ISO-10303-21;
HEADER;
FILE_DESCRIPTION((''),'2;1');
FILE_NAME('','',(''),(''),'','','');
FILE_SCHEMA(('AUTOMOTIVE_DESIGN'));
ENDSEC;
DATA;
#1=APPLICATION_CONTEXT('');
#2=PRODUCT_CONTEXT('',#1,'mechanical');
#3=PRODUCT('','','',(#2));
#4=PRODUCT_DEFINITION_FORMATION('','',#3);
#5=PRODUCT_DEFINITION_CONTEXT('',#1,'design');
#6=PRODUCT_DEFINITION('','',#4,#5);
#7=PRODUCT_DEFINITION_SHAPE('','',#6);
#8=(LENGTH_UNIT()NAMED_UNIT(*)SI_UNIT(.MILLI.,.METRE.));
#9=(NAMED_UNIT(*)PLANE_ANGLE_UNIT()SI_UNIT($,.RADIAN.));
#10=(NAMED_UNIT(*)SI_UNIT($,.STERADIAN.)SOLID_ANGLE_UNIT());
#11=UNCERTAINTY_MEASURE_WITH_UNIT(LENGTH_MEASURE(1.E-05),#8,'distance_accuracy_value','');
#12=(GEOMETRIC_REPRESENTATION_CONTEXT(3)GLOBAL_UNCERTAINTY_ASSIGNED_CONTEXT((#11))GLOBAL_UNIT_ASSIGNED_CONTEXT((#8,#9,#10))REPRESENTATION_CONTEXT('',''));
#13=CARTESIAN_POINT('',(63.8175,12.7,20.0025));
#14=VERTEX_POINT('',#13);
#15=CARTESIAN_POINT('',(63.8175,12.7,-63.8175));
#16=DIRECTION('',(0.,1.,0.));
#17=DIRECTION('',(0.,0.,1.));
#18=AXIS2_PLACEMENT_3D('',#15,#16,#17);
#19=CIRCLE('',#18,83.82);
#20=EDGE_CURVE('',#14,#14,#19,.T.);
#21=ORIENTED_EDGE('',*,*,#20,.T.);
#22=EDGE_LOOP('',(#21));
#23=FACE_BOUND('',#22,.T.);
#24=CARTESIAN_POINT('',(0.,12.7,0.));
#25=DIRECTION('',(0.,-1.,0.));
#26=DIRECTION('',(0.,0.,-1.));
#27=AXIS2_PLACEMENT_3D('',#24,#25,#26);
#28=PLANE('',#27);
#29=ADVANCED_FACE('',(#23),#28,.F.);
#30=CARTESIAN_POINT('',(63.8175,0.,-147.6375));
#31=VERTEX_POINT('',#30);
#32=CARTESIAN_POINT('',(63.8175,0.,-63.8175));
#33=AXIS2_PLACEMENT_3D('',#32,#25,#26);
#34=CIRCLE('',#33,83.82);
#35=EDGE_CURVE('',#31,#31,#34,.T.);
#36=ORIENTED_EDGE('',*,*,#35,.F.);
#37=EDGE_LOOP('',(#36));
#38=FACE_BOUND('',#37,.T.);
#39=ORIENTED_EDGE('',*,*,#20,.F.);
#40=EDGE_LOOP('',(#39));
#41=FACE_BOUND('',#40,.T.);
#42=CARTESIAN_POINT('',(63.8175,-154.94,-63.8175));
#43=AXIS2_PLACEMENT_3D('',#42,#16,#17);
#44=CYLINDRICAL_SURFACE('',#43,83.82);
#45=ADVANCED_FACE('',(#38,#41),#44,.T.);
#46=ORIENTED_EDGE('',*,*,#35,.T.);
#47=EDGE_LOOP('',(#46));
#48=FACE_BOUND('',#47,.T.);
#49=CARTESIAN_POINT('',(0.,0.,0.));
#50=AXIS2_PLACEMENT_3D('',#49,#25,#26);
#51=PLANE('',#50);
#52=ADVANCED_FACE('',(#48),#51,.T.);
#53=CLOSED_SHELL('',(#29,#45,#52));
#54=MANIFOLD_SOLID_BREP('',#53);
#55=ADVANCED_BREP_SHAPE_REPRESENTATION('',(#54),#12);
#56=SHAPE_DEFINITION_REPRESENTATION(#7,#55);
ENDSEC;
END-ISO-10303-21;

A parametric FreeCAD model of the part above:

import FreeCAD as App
import Part
import Sketcher

V = App.Vector
Q = App.Units.Quantity

doc = App.newDocument("Part")
params = doc.addObject("Spreadsheet::Sheet", "Params")
for row, (alias, value) in enumerate([
    ("sketch1_width", "5.025 in"),
    ("pad1_length", "0.5 in"),
    ("sketch2_diameter", "6.75 in"),
    ("pad2_length", "0.5 in"),
    ("sketch3_diameter", "6.6 in"),
    ("pocket1_length", "6.6 in"),
], start=1):
    params.set(f"A{row}", alias)
    params.set(f"B{row}", "=" + value)
    params.setAlias(f"B{row}", alias)

body = doc.addObject("PartDesign::Body", "Body")

# Sketch on XZ plane
sketch1 = body.newObject("Sketcher::SketchObject", "Sketch")
sketch1.AttachmentSupport = (doc.getObject("XZ_Plane"), [""])
sketch1.MapMode = "FlatFace"
sketch1.addGeometry(Part.LineSegment(V(0, -127.635, 0), V(0, 0, 0)), False)
sketch1.addGeometry(Part.LineSegment(V(0, 0, 0), V(127.635, 0, 0)), False)
sketch1.addGeometry(Part.LineSegment(V(127.635, 0, 0), V(127.635, -127.635, 0)), False)
sketch1.addGeometry(Part.LineSegment(V(127.635, -127.635, 0), V(0, -127.635, 0)), False)
sketch1.addConstraint(Sketcher.Constraint("Coincident", 0, 2, 1, 1))
sketch1.addConstraint(Sketcher.Constraint("Coincident", 1, 2, 2, 1))
sketch1.addConstraint(Sketcher.Constraint("Coincident", 2, 2, 3, 1))
sketch1.addConstraint(Sketcher.Constraint("Coincident", 3, 2, 0, 1))
sketch1.addConstraint(Sketcher.Constraint("Vertical", 0))
sketch1.addConstraint(Sketcher.Constraint("Horizontal", 1))
sketch1.addConstraint(Sketcher.Constraint("Vertical", 2))
sketch1.addConstraint(Sketcher.Constraint("Horizontal", 3))
sketch1.addConstraint(Sketcher.Constraint("Coincident", 0, 2, -1, 1))
sketch1.addConstraint(Sketcher.Constraint("Equal", 3, 0))
sketch1.addConstraint(Sketcher.Constraint("DistanceX", 1, 1, 1, 2, Q("5.025 in")))
sketch1.setExpression("Constraints[10]", "Params.sketch1_width")
pad1 = body.newObject("PartDesign::Pad", "Pad")
pad1.Profile = sketch1
pad1.setExpression("Length", "Params.pad1_length")
pad1.Reversed = True

# Sketch on XZ plane
sketch2 = body.newObject("Sketcher::SketchObject", "Sketch001")
sketch2.AttachmentSupport = (doc.getObject("XZ_Plane"), [""])
sketch2.MapMode = "FlatFace"
sketch2.AttachmentOffset = App.Placement(V(0, 0, -0.5 * 25.4), App.Rotation())
sketch2.addGeometry(Part.Circle(V(63.8175, -63.8175, 0), V(0, 0, 1), 85.725), False)
sketch2.addConstraint(Sketcher.Constraint("Diameter", 0, Q("6.75 in")))
sketch2.addConstraint(Sketcher.Constraint("DistanceX", -1, 1, 0, 3, Q("2.5125 in")))
sketch2.addConstraint(Sketcher.Constraint("DistanceY", 0, 3, -1, 1, Q("2.5125 in")))
sketch2.setExpression("Constraints[0]", "Params.sketch2_diameter")
pad2 = body.newObject("PartDesign::Pad", "Pad001")
pad2.Profile = sketch2
pad2.setExpression("Length", "Params.pad2_length")

# Sketch on XZ plane
sketch3 = body.newObject("Sketcher::SketchObject", "Sketch002")
sketch3.AttachmentSupport = (doc.getObject("XZ_Plane"), [""])
sketch3.MapMode = "FlatFace"
sketch3.AttachmentOffset = App.Placement(V(0, 0, -0.5 * 25.4), App.Rotation())
sketch3.addGeometry(Part.Circle(V(63.8175, -63.8175, 0), V(0, 0, 1), 97.039627), False)
sketch3.addGeometry(Part.Circle(V(63.8175, -63.8175, 0), V(0, 0, 1), 83.82), False)
sketch3.addConstraint(Sketcher.Constraint("Coincident", 1, 3, 0, 3))
sketch3.addConstraint(Sketcher.Constraint("Diameter", 1, Q("6.6 in")))
sketch3.addConstraint(Sketcher.Constraint("Diameter", 0, Q("194.079254 mm")))
sketch3.addConstraint(Sketcher.Constraint("DistanceX", -1, 1, 0, 3, Q("2.5125 in")))
sketch3.addConstraint(Sketcher.Constraint("DistanceY", 0, 3, -1, 1, Q("2.5125 in")))
sketch3.setExpression("Constraints[1]", "Params.sketch3_diameter")
pocket1 = body.newObject("PartDesign::Pocket", "Pocket")
pocket1.Profile = sketch3
pocket1.setExpression("Length", "Params.pocket1_length")
pocket1.Reversed = True

doc.recompute()
